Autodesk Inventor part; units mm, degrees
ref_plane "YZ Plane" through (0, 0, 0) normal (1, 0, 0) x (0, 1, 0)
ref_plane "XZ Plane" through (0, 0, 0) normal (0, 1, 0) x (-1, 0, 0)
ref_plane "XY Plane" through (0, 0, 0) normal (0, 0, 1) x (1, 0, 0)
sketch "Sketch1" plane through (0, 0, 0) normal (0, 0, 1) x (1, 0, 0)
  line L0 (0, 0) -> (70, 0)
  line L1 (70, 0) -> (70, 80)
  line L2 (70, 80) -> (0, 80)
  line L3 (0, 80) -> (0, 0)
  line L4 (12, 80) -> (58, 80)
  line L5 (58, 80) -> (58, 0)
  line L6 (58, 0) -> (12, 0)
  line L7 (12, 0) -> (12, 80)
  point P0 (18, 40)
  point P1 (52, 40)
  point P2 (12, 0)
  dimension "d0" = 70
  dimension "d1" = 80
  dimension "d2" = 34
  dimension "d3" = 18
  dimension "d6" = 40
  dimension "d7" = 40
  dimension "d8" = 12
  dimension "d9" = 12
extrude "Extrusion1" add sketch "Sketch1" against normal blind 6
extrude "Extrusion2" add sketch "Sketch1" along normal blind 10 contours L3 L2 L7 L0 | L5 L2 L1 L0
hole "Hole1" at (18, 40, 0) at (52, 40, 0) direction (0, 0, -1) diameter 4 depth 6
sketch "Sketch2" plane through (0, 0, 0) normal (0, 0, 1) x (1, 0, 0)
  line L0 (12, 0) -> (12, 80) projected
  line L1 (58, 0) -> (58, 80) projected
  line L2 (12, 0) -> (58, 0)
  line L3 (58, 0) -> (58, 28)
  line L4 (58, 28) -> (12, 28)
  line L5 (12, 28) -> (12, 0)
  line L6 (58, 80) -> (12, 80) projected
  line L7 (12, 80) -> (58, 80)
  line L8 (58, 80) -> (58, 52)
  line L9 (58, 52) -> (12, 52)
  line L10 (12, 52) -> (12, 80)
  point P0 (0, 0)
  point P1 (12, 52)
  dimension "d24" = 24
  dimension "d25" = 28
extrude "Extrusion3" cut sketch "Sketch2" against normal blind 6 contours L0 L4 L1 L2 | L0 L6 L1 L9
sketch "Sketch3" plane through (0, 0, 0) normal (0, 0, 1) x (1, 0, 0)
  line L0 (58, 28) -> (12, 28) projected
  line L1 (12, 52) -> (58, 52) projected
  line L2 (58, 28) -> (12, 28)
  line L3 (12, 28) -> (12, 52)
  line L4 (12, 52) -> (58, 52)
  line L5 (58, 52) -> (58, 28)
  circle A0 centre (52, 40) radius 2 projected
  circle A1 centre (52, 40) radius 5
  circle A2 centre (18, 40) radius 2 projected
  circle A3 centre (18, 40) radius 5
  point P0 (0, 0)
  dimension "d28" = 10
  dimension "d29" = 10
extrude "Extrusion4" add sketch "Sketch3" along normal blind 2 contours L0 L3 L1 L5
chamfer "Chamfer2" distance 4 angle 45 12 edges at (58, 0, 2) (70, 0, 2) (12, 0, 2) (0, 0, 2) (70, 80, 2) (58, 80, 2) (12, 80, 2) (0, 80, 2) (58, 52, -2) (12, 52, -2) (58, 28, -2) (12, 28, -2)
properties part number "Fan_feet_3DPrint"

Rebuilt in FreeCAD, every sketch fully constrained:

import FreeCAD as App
import Part
import Sketcher

V = App.Vector


def edges_at(feature, points):
    """Names of the edges that pass closest to the given points."""
    edges = feature.Shape.Edges
    near = lambda p: min(range(len(edges)), key=lambda i: edges[i].distToShape(Part.Vertex(*p))[0])
    return sorted({f"Edge{near(p) + 1}" for p in points})


def add_polygon(sketch, points):
    """Adds a closed chain of lines whose ends are joined by coincident constraints."""
    first, n = sketch.GeometryCount, len(points)
    for a, b in zip(points, points[1:] + points[:1]):
        sketch.addGeometry(Part.LineSegment(App.Vector(*a, 0), App.Vector(*b, 0)), False)
    for i in range(n):
        sketch.addConstraint(Sketcher.Constraint("Coincident", first + i, 2, first + (i + 1) % n, 1))

doc = App.newDocument("Part")
params = doc.addObject("Spreadsheet::Sheet", "Params")
for row, (alias, value) in enumerate([
    ("sketch1_width", "70 mm"),
    ("sketch1_height", "80 mm"),
    ("pad1_length", "6 mm"),
    ("sketch2_width", "12 mm"),
    ("sketch2_height", "80 mm"),
    ("pad2_length", "10 mm"),
    ("sketch3_diameter", "4 mm"),
    ("hole_diameter", "4 mm"),
    ("hole_depth", "6 mm"),
    ("sketch4_height", "28 mm"),
    ("sketch4_width", "46 mm"),
    ("pocket1_length", "6 mm"),
    ("sketch5_diameter", "10 mm"),
    ("sketch5_width", "46 mm"),
    ("sketch5_height", "24 mm"),
    ("pad3_length", "2 mm"),
    ("chamfer_size", "4 mm"),
], start=1):
    params.set(f"A{row}", alias)
    params.set(f"B{row}", "=" + value)
    params.setAlias(f"B{row}", alias)

body = doc.addObject("PartDesign::Body", "Body")

# Sketch on XY plane
sketch1 = body.newObject("Sketcher::SketchObject", "Sketch")
sketch1.AttachmentSupport = (doc.getObject("XY_Plane"), [""])
sketch1.MapMode = "FlatFace"
add_polygon(sketch1, [(0, 80), (0, 0), (70, 0), (70, 80)])  # lines 0-3
sketch1.addConstraint([
    Sketcher.Constraint("Vertical", 0),
    Sketcher.Constraint("Horizontal", 1),
    Sketcher.Constraint("Vertical", 2),
    Sketcher.Constraint("Horizontal", 3),
    Sketcher.Constraint("Coincident", 0, 2, -1, 1),
    Sketcher.Constraint("DistanceX", 1, 1, 1, 2, 70.0),
    Sketcher.Constraint("DistanceY", 0, 2, 0, 1, 80.0),
])
sketch1.setExpression("Constraints[9]", "Params.sketch1_width")
sketch1.setExpression("Constraints[10]", "Params.sketch1_height")
pad1 = body.newObject("PartDesign::Pad", "Pad")
pad1.Profile = sketch1
pad1.setExpression("Length", "Params.pad1_length")
pad1.Reversed = True

# Sketch on XY plane
sketch2 = body.newObject("Sketcher::SketchObject", "Sketch001")
sketch2.AttachmentSupport = (doc.getObject("XY_Plane"), [""])
sketch2.MapMode = "FlatFace"
add_polygon(sketch2, [(0, 80), (0, 0), (12, 0), (12, 80)])  # lines 0-3
add_polygon(sketch2, [(58, 80), (58, 0), (70, 0), (70, 80)])  # lines 4-7
sketch2.addConstraint([
    Sketcher.Constraint("Vertical", 0),
    Sketcher.Constraint("Horizontal", 1),
    Sketcher.Constraint("Vertical", 2),
    Sketcher.Constraint("Horizontal", 3),
    Sketcher.Constraint("Vertical", 4),
    Sketcher.Constraint("Horizontal", 5),
    Sketcher.Constraint("Vertical", 6),
    Sketcher.Constraint("Horizontal", 7),
    Sketcher.Constraint("Coincident", 0, 2, -1, 1),
    Sketcher.Constraint("PointOnObject", 4, 2, -1),
    Sketcher.Constraint("Horizontal", 3, 2, 6, 2),
    Sketcher.Constraint("Equal", 3, 5),
    Sketcher.Constraint("DistanceX", 1, 1, 1, 2, 12.0),
    Sketcher.Constraint("DistanceY", 0, 2, 0, 1, 80.0),
    Sketcher.Constraint("DistanceX", -1, 1, 5, 2, 70.0),
])
sketch2.setExpression("Constraints[20]", "Params.sketch2_width")
sketch2.setExpression("Constraints[21]", "Params.sketch2_height")
pad2 = body.newObject("PartDesign::Pad", "Pad001")
pad2.Profile = sketch2
pad2.setExpression("Length", "Params.pad2_length")

# Sketch on XY plane
sketch3 = body.newObject("Sketcher::SketchObject", "Sketch002")
sketch3.AttachmentSupport = (doc.getObject("XY_Plane"), [""])
sketch3.MapMode = "FlatFace"
sketch3.addGeometry([
    Part.Circle(V(18, 40, 0), V(0, 0, 1), 2),
    Part.Circle(V(52, 40, 0), V(0, 0, 1), 2),
], False)
sketch3.addConstraint([
    Sketcher.Constraint("Equal", 0, 1),
    Sketcher.Constraint("Horizontal", 0, 3, 1, 3),
    Sketcher.Constraint("Diameter", 0, 4.0),
    Sketcher.Constraint("DistanceX", -1, 1, 0, 3, 18.0),
    Sketcher.Constraint("DistanceY", -1, 1, 0, 3, 40.0),
    Sketcher.Constraint("DistanceX", -1, 1, 1, 3, 52.0),
])
sketch3.setExpression("Constraints[2]", "Params.sketch3_diameter")
doc.recompute()
hole = body.newObject("PartDesign::Hole", "Hole")
hole.Profile = sketch3
hole.ThreadType = "None"
hole.setExpression("Diameter", "Params.hole_diameter")
hole.DepthType = "Dimension"
hole.setExpression("Depth", "Params.hole_depth")
hole.DrillPoint = "Flat"

# Sketch on XY plane
sketch4 = body.newObject("Sketcher::SketchObject", "Sketch003")
sketch4.AttachmentSupport = (doc.getObject("XY_Plane"), [""])
sketch4.MapMode = "FlatFace"
add_polygon(sketch4, [(12, 28), (12, 0), (58, 0), (58, 28)])  # lines 0-3
add_polygon(sketch4, [(12, 80), (12, 52), (58, 52), (58, 80)])  # lines 4-7
sketch4.addConstraint([
    Sketcher.Constraint("Vertical", 0),
    Sketcher.Constraint("Horizontal", 1),
    Sketcher.Constraint("Vertical", 2),
    Sketcher.Constraint("Horizontal", 3),
    Sketcher.Constraint("Vertical", 4),
    Sketcher.Constraint("Horizontal", 5),
    Sketcher.Constraint("Vertical", 6),
    Sketcher.Constraint("Horizontal", 7),
    Sketcher.Constraint("PointOnObject", 0, 2, -1),
    Sketcher.Constraint("Vertical", 3, 2, 4, 2),
    Sketcher.Constraint("Vertical", 2, 2, 5, 2),
    Sketcher.Constraint("Equal", 2, 4),
    Sketcher.Constraint("DistanceY", 0, 2, 0, 1, 28.0),
    Sketcher.Constraint("DistanceY", 3, 2, 4, 2, 24.0),
    Sketcher.Constraint("DistanceX", 1, 1, 1, 2, 46.0),
    Sketcher.Constraint("DistanceX", -1, 1, 0, 2, 12.0),
])
sketch4.setExpression("Constraints[20]", "Params.sketch4_height")
sketch4.setExpression("Constraints[22]", "Params.sketch4_width")
pocket1 = body.newObject("PartDesign::Pocket", "Pocket")
pocket1.Profile = sketch4
pocket1.setExpression("Length", "Params.pocket1_length")

# Sketch on XY plane
sketch5 = body.newObject("Sketcher::SketchObject", "Sketch004")
sketch5.AttachmentSupport = (doc.getObject("XY_Plane"), [""])
sketch5.MapMode = "FlatFace"
add_polygon(sketch5, [(12, 28), (58, 28), (58, 52), (12, 52)])  # lines 0-3
sketch5.addGeometry(Part.Circle(V(18, 40, 0), V(0, 0, 1), 5), False)  # 4
sketch5.addGeometry(Part.Circle(V(52, 40, 0), V(0, 0, 1), 5), False)  # 5
sketch5.addConstraint([
    Sketcher.Constraint("Horizontal", 0),
    Sketcher.Constraint("Vertical", 1),
    Sketcher.Constraint("Horizontal", 2),
    Sketcher.Constraint("Vertical", 3),
    Sketcher.Constraint("Equal", 4, 5),
    Sketcher.Constraint("Horizontal", 4, 3, 5, 3),
    Sketcher.Constraint("Diameter", 4, 10.0),
    Sketcher.Constraint("DistanceX", 0, 1, 0, 2, 46.0),
    Sketcher.Constraint("DistanceY", 1, 1, 1, 2, 24.0),
    Sketcher.Constraint("DistanceX", -1, 1, 4, 3, 18.0),
    Sketcher.Constraint("DistanceY", -1, 1, 4, 3, 40.0),
    Sketcher.Constraint("DistanceX", -1, 1, 5, 3, 52.0),
    Sketcher.Constraint("DistanceX", -1, 1, 0, 2, 58.0),
    Sketcher.Constraint("DistanceY", -1, 1, 0, 2, 28.0),
])
sketch5.setExpression("Constraints[10]", "Params.sketch5_diameter")
sketch5.setExpression("Constraints[11]", "Params.sketch5_width")
sketch5.setExpression("Constraints[12]", "Params.sketch5_height")
pad3 = body.newObject("PartDesign::Pad", "Pad002")
pad3.Profile = sketch5
pad3.setExpression("Length", "Params.pad3_length")
doc.recompute()

chamfer = body.newObject("PartDesign::Chamfer", "Chamfer")
chamfer.Base = (pad3, edges_at(pad3, [
    (58, 0, 2),
    (70, 0, 2),
    (12, 0, 2),
    (0, 0, 2),
    (70, 80, 2),
    (58, 80, 2),
    (12, 80, 2),
    (0, 80, 2),
    (58, 52, -2),
    (12, 52, -2),
    (58, 28, -2),
    (12, 28, -2),
]))
chamfer.setExpression("Size", "Params.chamfer_size")

doc.recompute()
